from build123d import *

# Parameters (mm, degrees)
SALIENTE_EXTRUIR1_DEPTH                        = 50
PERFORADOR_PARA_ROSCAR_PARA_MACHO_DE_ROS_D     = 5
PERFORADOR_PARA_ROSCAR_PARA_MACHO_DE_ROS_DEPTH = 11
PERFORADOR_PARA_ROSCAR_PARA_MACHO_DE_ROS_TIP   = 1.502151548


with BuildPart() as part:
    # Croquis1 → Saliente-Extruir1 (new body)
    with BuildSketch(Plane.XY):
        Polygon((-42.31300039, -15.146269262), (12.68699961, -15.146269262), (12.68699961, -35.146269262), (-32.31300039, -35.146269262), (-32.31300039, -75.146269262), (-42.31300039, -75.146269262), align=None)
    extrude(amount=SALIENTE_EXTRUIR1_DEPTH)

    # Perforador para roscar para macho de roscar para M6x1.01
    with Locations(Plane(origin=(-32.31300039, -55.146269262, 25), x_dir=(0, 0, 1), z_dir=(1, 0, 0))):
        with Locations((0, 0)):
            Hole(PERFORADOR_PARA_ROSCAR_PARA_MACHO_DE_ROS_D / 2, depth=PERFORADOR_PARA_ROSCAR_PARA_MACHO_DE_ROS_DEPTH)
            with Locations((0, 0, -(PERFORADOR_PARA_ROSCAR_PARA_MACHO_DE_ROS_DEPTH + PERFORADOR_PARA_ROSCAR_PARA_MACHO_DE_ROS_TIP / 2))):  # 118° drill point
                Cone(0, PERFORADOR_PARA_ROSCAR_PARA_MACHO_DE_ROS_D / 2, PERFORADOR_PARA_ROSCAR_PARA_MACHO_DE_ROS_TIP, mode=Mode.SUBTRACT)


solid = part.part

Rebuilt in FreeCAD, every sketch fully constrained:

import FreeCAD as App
import Part
import Sketcher

doc = App.newDocument("Part")
body = doc.addObject("PartDesign::Body", "Body")

# Sketch on XY plane
sketch1 = body.newObject("Sketcher::SketchObject", "Sketch")
sketch1.AttachmentSupport = (doc.getObject("XY_Plane"), [""])
sketch1.MapMode = "FlatFace"
sketch1.addGeometry([
    Part.LineSegment(App.Vector(13, -15, 0), App.Vector(-42, -15, 0)),  # 0
    Part.LineSegment(App.Vector(-42, -15, 0), App.Vector(-42, -75, 0)),  # 1
    Part.LineSegment(App.Vector(-42, -75, 0), App.Vector(-32, -75, 0)),  # 2
    Part.LineSegment(App.Vector(-32, -75, 0), App.Vector(-32, -35, 0)),  # 3
    Part.LineSegment(App.Vector(-32, -35, 0), App.Vector(13, -35, 0)),  # 4
    Part.LineSegment(App.Vector(13, -35, 0), App.Vector(13, -15, 0)),  # 5
], False)
sketch1.addConstraint([
    Sketcher.Constraint("Coincident", 0, 2, 1, 1),
    Sketcher.Constraint("Coincident", 1, 2, 2, 1),
    Sketcher.Constraint("Coincident", 2, 2, 3, 1),
    Sketcher.Constraint("Coincident", 3, 2, 4, 1),
    Sketcher.Constraint("Coincident", 4, 2, 5, 1),
    Sketcher.Constraint("Coincident", 5, 2, 0, 1),
    Sketcher.Constraint("Horizontal", 0),
    Sketcher.Constraint("Vertical", 1),
    Sketcher.Constraint("Horizontal", 2),
    Sketcher.Constraint("Vertical", 3),
    Sketcher.Constraint("Horizontal", 4),
    Sketcher.Constraint("Vertical", 5),
    Sketcher.Constraint("DistanceX", 0, 2, 0, 1, 55.0),
    Sketcher.Constraint("DistanceX", 2, 1, 2, 2, 10.0),
    Sketcher.Constraint("DistanceY", 1, 2, 1, 1, 60.0),
    Sketcher.Constraint("DistanceY", 3, 1, 3, 2, 40.0),
    Sketcher.Constraint("DistanceX", 0, 2, -1, 1, 42.313),
    Sketcher.Constraint("DistanceY", 0, 2, -1, 1, 15.146269),
])
pad1 = body.newObject("PartDesign::Pad", "Pad")
pad1.Profile = sketch1
pad1.Length = 50

# Sketch on YZ plane
sketch2 = body.newObject("Sketcher::SketchObject", "Sketch001")
sketch2.AttachmentSupport = (doc.getObject("YZ_Plane"), [""])
sketch2.MapMode = "FlatFace"
sketch2.AttachmentOffset = App.Placement(App.Vector(0, 0, -32.313), App.Rotation())
sketch2.addGeometry(Part.Circle(App.Vector(-55.1, 25, 0), App.Vector(0, 0, 1), 2.5), False)
sketch2.addConstraint([
    Sketcher.Constraint("Diameter", 0, 5.0),
    Sketcher.Constraint("DistanceY", -1, 1, 0, 3, 25.0),
    Sketcher.Constraint("DistanceX", 0, 3, -1, 1, 55.146269),
])
doc.recompute()
hole = body.newObject("PartDesign::Hole", "Hole")
hole.Profile = sketch2
hole.ThreadType = "None"
hole.Diameter = 5
hole.DepthType = "Dimension"
hole.Depth = 11
hole.DrillPoint = "Angled"
hole.DrillPointAngle = 118

doc.recompute()
